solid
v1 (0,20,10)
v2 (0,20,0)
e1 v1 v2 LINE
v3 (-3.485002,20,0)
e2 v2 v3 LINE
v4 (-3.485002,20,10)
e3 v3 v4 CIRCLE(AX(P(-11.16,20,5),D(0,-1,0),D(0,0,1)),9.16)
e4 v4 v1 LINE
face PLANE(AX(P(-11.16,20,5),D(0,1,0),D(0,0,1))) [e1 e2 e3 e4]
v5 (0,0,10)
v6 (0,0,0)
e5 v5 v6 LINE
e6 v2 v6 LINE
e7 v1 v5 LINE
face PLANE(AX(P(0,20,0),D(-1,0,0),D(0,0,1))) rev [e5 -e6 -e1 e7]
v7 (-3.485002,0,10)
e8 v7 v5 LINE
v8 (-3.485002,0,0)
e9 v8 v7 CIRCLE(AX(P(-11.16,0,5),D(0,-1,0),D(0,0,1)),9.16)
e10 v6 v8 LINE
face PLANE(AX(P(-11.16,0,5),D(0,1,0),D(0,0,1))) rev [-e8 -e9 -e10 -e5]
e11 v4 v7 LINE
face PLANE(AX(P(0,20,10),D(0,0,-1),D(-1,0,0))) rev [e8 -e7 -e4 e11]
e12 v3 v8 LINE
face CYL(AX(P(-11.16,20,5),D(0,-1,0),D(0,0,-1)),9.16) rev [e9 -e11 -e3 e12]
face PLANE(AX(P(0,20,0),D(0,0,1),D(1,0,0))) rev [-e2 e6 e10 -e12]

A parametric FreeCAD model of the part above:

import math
import FreeCAD as App
import Part
import Sketcher

doc = App.newDocument("Part")
body = doc.addObject("PartDesign::Body", "Body")

# Sketch on XZ plane
sketch1 = body.newObject("Sketcher::SketchObject", "Sketch")
sketch1.AttachmentSupport = (doc.getObject("XZ_Plane"), [""])
sketch1.MapMode = "FlatFace"
sketch1.addGeometry([
    Part.LineSegment(App.Vector(0, 10, 0), App.Vector(0, 0, 0)),
    Part.LineSegment(App.Vector(0, 0, 0), App.Vector(-3.5, 0, 0)),
    Part.ArcOfCircle(Part.Circle(App.Vector(-11.2, 5, 0), App.Vector(0, 0, 1), 9.2), math.radians(-33), math.radians(33)),
    Part.LineSegment(App.Vector(-3.5, 10, 0), App.Vector(0, 10, 0)),
], False)
sketch1.addConstraint([
    Sketcher.Constraint("Coincident", 0, 2, 1, 1),
    Sketcher.Constraint("Coincident", 1, 2, 2, 1),
    Sketcher.Constraint("Coincident", 2, 2, 3, 1),
    Sketcher.Constraint("Coincident", 3, 2, 0, 1),
    Sketcher.Constraint("Vertical", 0),
    Sketcher.Constraint("Horizontal", 1),
    Sketcher.Constraint("Horizontal", 3),
    Sketcher.Constraint("Coincident", 0, 2, -1, 1),
    Sketcher.Constraint("Vertical", 1, 2, 2, 2),
    Sketcher.Constraint("DistanceY", 0, 2, 0, 1, 10.0),
    Sketcher.Constraint("Radius", 2, 9.16),
    Sketcher.Constraint("DistanceX", 1, 2, 1, 1, 3.485002),
])
pad1 = body.newObject("PartDesign::Pad", "Pad")
pad1.Profile = sketch1
pad1.Length = 20
pad1.Reversed = True

doc.recompute()
